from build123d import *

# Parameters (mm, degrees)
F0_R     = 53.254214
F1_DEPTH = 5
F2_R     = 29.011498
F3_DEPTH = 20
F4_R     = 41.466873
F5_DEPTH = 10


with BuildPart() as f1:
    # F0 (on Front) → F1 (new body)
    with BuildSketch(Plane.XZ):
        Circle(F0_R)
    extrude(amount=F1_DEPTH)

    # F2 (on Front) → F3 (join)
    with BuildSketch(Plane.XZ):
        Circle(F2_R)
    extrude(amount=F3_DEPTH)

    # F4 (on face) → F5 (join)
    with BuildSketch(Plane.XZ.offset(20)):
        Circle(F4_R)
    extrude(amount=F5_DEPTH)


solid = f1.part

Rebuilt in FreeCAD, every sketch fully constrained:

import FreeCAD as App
import Part
import Sketcher
from FreeCAD import Vector
Q = App.Units.Quantity

doc = App.newDocument("Part")
body = doc.addObject("PartDesign::Body", "Body")

# Sketch on XZ plane
sketch1 = doc.addObject("Sketcher::SketchObject", "Sketch")
body.addObject(sketch1)
sketch1.AttachmentSupport = (doc.XZ_Plane, [""])
sketch1.MapMode = "FlatFace"
sketch1.addGeometry(Part.Circle(Vector(0, 0, 0), Vector(0, 0, 1), 53), False)
sketch1.addConstraint(Sketcher.Constraint("Coincident", 0, 3, -1, 1))
sketch1.addConstraint(Sketcher.Constraint("Diameter", 0, Q("106.508428 mm")))
pad1 = doc.addObject("PartDesign::Pad", "Pad")
body.addObject(pad1)
pad1.Profile = sketch1
pad1.Length = 5

# Sketch on XZ plane
sketch2 = doc.addObject("Sketcher::SketchObject", "Sketch001")
body.addObject(sketch2)
sketch2.AttachmentSupport = (doc.XZ_Plane, [""])
sketch2.MapMode = "FlatFace"
sketch2.addGeometry(Part.Circle(Vector(0, 0, 0), Vector(0, 0, 1), 29), False)
sketch2.addConstraint(Sketcher.Constraint("Coincident", 0, 3, -1, 1))
sketch2.addConstraint(Sketcher.Constraint("Diameter", 0, Q("58.022996 mm")))
pad2 = doc.addObject("PartDesign::Pad", "Pad001")
body.addObject(pad2)
pad2.Profile = sketch2
pad2.Length = 20

# Sketch on XZ plane
sketch3 = doc.addObject("Sketcher::SketchObject", "Sketch002")
body.addObject(sketch3)
sketch3.AttachmentSupport = (doc.XZ_Plane, [""])
sketch3.MapMode = "FlatFace"
sketch3.AttachmentOffset = App.Placement(Vector(0, 0, 20), App.Rotation())
sketch3.addGeometry(Part.Circle(Vector(0, 0, 0), Vector(0, 0, 1), 41), False)
sketch3.addConstraint(Sketcher.Constraint("Coincident", 0, 3, -1, 1))
sketch3.addConstraint(Sketcher.Constraint("Diameter", 0, Q("82.933746 mm")))
pad3 = doc.addObject("PartDesign::Pad", "Pad002")
body.addObject(pad3)
pad3.Profile = sketch3
pad3.Length = 10

doc.recompute()
